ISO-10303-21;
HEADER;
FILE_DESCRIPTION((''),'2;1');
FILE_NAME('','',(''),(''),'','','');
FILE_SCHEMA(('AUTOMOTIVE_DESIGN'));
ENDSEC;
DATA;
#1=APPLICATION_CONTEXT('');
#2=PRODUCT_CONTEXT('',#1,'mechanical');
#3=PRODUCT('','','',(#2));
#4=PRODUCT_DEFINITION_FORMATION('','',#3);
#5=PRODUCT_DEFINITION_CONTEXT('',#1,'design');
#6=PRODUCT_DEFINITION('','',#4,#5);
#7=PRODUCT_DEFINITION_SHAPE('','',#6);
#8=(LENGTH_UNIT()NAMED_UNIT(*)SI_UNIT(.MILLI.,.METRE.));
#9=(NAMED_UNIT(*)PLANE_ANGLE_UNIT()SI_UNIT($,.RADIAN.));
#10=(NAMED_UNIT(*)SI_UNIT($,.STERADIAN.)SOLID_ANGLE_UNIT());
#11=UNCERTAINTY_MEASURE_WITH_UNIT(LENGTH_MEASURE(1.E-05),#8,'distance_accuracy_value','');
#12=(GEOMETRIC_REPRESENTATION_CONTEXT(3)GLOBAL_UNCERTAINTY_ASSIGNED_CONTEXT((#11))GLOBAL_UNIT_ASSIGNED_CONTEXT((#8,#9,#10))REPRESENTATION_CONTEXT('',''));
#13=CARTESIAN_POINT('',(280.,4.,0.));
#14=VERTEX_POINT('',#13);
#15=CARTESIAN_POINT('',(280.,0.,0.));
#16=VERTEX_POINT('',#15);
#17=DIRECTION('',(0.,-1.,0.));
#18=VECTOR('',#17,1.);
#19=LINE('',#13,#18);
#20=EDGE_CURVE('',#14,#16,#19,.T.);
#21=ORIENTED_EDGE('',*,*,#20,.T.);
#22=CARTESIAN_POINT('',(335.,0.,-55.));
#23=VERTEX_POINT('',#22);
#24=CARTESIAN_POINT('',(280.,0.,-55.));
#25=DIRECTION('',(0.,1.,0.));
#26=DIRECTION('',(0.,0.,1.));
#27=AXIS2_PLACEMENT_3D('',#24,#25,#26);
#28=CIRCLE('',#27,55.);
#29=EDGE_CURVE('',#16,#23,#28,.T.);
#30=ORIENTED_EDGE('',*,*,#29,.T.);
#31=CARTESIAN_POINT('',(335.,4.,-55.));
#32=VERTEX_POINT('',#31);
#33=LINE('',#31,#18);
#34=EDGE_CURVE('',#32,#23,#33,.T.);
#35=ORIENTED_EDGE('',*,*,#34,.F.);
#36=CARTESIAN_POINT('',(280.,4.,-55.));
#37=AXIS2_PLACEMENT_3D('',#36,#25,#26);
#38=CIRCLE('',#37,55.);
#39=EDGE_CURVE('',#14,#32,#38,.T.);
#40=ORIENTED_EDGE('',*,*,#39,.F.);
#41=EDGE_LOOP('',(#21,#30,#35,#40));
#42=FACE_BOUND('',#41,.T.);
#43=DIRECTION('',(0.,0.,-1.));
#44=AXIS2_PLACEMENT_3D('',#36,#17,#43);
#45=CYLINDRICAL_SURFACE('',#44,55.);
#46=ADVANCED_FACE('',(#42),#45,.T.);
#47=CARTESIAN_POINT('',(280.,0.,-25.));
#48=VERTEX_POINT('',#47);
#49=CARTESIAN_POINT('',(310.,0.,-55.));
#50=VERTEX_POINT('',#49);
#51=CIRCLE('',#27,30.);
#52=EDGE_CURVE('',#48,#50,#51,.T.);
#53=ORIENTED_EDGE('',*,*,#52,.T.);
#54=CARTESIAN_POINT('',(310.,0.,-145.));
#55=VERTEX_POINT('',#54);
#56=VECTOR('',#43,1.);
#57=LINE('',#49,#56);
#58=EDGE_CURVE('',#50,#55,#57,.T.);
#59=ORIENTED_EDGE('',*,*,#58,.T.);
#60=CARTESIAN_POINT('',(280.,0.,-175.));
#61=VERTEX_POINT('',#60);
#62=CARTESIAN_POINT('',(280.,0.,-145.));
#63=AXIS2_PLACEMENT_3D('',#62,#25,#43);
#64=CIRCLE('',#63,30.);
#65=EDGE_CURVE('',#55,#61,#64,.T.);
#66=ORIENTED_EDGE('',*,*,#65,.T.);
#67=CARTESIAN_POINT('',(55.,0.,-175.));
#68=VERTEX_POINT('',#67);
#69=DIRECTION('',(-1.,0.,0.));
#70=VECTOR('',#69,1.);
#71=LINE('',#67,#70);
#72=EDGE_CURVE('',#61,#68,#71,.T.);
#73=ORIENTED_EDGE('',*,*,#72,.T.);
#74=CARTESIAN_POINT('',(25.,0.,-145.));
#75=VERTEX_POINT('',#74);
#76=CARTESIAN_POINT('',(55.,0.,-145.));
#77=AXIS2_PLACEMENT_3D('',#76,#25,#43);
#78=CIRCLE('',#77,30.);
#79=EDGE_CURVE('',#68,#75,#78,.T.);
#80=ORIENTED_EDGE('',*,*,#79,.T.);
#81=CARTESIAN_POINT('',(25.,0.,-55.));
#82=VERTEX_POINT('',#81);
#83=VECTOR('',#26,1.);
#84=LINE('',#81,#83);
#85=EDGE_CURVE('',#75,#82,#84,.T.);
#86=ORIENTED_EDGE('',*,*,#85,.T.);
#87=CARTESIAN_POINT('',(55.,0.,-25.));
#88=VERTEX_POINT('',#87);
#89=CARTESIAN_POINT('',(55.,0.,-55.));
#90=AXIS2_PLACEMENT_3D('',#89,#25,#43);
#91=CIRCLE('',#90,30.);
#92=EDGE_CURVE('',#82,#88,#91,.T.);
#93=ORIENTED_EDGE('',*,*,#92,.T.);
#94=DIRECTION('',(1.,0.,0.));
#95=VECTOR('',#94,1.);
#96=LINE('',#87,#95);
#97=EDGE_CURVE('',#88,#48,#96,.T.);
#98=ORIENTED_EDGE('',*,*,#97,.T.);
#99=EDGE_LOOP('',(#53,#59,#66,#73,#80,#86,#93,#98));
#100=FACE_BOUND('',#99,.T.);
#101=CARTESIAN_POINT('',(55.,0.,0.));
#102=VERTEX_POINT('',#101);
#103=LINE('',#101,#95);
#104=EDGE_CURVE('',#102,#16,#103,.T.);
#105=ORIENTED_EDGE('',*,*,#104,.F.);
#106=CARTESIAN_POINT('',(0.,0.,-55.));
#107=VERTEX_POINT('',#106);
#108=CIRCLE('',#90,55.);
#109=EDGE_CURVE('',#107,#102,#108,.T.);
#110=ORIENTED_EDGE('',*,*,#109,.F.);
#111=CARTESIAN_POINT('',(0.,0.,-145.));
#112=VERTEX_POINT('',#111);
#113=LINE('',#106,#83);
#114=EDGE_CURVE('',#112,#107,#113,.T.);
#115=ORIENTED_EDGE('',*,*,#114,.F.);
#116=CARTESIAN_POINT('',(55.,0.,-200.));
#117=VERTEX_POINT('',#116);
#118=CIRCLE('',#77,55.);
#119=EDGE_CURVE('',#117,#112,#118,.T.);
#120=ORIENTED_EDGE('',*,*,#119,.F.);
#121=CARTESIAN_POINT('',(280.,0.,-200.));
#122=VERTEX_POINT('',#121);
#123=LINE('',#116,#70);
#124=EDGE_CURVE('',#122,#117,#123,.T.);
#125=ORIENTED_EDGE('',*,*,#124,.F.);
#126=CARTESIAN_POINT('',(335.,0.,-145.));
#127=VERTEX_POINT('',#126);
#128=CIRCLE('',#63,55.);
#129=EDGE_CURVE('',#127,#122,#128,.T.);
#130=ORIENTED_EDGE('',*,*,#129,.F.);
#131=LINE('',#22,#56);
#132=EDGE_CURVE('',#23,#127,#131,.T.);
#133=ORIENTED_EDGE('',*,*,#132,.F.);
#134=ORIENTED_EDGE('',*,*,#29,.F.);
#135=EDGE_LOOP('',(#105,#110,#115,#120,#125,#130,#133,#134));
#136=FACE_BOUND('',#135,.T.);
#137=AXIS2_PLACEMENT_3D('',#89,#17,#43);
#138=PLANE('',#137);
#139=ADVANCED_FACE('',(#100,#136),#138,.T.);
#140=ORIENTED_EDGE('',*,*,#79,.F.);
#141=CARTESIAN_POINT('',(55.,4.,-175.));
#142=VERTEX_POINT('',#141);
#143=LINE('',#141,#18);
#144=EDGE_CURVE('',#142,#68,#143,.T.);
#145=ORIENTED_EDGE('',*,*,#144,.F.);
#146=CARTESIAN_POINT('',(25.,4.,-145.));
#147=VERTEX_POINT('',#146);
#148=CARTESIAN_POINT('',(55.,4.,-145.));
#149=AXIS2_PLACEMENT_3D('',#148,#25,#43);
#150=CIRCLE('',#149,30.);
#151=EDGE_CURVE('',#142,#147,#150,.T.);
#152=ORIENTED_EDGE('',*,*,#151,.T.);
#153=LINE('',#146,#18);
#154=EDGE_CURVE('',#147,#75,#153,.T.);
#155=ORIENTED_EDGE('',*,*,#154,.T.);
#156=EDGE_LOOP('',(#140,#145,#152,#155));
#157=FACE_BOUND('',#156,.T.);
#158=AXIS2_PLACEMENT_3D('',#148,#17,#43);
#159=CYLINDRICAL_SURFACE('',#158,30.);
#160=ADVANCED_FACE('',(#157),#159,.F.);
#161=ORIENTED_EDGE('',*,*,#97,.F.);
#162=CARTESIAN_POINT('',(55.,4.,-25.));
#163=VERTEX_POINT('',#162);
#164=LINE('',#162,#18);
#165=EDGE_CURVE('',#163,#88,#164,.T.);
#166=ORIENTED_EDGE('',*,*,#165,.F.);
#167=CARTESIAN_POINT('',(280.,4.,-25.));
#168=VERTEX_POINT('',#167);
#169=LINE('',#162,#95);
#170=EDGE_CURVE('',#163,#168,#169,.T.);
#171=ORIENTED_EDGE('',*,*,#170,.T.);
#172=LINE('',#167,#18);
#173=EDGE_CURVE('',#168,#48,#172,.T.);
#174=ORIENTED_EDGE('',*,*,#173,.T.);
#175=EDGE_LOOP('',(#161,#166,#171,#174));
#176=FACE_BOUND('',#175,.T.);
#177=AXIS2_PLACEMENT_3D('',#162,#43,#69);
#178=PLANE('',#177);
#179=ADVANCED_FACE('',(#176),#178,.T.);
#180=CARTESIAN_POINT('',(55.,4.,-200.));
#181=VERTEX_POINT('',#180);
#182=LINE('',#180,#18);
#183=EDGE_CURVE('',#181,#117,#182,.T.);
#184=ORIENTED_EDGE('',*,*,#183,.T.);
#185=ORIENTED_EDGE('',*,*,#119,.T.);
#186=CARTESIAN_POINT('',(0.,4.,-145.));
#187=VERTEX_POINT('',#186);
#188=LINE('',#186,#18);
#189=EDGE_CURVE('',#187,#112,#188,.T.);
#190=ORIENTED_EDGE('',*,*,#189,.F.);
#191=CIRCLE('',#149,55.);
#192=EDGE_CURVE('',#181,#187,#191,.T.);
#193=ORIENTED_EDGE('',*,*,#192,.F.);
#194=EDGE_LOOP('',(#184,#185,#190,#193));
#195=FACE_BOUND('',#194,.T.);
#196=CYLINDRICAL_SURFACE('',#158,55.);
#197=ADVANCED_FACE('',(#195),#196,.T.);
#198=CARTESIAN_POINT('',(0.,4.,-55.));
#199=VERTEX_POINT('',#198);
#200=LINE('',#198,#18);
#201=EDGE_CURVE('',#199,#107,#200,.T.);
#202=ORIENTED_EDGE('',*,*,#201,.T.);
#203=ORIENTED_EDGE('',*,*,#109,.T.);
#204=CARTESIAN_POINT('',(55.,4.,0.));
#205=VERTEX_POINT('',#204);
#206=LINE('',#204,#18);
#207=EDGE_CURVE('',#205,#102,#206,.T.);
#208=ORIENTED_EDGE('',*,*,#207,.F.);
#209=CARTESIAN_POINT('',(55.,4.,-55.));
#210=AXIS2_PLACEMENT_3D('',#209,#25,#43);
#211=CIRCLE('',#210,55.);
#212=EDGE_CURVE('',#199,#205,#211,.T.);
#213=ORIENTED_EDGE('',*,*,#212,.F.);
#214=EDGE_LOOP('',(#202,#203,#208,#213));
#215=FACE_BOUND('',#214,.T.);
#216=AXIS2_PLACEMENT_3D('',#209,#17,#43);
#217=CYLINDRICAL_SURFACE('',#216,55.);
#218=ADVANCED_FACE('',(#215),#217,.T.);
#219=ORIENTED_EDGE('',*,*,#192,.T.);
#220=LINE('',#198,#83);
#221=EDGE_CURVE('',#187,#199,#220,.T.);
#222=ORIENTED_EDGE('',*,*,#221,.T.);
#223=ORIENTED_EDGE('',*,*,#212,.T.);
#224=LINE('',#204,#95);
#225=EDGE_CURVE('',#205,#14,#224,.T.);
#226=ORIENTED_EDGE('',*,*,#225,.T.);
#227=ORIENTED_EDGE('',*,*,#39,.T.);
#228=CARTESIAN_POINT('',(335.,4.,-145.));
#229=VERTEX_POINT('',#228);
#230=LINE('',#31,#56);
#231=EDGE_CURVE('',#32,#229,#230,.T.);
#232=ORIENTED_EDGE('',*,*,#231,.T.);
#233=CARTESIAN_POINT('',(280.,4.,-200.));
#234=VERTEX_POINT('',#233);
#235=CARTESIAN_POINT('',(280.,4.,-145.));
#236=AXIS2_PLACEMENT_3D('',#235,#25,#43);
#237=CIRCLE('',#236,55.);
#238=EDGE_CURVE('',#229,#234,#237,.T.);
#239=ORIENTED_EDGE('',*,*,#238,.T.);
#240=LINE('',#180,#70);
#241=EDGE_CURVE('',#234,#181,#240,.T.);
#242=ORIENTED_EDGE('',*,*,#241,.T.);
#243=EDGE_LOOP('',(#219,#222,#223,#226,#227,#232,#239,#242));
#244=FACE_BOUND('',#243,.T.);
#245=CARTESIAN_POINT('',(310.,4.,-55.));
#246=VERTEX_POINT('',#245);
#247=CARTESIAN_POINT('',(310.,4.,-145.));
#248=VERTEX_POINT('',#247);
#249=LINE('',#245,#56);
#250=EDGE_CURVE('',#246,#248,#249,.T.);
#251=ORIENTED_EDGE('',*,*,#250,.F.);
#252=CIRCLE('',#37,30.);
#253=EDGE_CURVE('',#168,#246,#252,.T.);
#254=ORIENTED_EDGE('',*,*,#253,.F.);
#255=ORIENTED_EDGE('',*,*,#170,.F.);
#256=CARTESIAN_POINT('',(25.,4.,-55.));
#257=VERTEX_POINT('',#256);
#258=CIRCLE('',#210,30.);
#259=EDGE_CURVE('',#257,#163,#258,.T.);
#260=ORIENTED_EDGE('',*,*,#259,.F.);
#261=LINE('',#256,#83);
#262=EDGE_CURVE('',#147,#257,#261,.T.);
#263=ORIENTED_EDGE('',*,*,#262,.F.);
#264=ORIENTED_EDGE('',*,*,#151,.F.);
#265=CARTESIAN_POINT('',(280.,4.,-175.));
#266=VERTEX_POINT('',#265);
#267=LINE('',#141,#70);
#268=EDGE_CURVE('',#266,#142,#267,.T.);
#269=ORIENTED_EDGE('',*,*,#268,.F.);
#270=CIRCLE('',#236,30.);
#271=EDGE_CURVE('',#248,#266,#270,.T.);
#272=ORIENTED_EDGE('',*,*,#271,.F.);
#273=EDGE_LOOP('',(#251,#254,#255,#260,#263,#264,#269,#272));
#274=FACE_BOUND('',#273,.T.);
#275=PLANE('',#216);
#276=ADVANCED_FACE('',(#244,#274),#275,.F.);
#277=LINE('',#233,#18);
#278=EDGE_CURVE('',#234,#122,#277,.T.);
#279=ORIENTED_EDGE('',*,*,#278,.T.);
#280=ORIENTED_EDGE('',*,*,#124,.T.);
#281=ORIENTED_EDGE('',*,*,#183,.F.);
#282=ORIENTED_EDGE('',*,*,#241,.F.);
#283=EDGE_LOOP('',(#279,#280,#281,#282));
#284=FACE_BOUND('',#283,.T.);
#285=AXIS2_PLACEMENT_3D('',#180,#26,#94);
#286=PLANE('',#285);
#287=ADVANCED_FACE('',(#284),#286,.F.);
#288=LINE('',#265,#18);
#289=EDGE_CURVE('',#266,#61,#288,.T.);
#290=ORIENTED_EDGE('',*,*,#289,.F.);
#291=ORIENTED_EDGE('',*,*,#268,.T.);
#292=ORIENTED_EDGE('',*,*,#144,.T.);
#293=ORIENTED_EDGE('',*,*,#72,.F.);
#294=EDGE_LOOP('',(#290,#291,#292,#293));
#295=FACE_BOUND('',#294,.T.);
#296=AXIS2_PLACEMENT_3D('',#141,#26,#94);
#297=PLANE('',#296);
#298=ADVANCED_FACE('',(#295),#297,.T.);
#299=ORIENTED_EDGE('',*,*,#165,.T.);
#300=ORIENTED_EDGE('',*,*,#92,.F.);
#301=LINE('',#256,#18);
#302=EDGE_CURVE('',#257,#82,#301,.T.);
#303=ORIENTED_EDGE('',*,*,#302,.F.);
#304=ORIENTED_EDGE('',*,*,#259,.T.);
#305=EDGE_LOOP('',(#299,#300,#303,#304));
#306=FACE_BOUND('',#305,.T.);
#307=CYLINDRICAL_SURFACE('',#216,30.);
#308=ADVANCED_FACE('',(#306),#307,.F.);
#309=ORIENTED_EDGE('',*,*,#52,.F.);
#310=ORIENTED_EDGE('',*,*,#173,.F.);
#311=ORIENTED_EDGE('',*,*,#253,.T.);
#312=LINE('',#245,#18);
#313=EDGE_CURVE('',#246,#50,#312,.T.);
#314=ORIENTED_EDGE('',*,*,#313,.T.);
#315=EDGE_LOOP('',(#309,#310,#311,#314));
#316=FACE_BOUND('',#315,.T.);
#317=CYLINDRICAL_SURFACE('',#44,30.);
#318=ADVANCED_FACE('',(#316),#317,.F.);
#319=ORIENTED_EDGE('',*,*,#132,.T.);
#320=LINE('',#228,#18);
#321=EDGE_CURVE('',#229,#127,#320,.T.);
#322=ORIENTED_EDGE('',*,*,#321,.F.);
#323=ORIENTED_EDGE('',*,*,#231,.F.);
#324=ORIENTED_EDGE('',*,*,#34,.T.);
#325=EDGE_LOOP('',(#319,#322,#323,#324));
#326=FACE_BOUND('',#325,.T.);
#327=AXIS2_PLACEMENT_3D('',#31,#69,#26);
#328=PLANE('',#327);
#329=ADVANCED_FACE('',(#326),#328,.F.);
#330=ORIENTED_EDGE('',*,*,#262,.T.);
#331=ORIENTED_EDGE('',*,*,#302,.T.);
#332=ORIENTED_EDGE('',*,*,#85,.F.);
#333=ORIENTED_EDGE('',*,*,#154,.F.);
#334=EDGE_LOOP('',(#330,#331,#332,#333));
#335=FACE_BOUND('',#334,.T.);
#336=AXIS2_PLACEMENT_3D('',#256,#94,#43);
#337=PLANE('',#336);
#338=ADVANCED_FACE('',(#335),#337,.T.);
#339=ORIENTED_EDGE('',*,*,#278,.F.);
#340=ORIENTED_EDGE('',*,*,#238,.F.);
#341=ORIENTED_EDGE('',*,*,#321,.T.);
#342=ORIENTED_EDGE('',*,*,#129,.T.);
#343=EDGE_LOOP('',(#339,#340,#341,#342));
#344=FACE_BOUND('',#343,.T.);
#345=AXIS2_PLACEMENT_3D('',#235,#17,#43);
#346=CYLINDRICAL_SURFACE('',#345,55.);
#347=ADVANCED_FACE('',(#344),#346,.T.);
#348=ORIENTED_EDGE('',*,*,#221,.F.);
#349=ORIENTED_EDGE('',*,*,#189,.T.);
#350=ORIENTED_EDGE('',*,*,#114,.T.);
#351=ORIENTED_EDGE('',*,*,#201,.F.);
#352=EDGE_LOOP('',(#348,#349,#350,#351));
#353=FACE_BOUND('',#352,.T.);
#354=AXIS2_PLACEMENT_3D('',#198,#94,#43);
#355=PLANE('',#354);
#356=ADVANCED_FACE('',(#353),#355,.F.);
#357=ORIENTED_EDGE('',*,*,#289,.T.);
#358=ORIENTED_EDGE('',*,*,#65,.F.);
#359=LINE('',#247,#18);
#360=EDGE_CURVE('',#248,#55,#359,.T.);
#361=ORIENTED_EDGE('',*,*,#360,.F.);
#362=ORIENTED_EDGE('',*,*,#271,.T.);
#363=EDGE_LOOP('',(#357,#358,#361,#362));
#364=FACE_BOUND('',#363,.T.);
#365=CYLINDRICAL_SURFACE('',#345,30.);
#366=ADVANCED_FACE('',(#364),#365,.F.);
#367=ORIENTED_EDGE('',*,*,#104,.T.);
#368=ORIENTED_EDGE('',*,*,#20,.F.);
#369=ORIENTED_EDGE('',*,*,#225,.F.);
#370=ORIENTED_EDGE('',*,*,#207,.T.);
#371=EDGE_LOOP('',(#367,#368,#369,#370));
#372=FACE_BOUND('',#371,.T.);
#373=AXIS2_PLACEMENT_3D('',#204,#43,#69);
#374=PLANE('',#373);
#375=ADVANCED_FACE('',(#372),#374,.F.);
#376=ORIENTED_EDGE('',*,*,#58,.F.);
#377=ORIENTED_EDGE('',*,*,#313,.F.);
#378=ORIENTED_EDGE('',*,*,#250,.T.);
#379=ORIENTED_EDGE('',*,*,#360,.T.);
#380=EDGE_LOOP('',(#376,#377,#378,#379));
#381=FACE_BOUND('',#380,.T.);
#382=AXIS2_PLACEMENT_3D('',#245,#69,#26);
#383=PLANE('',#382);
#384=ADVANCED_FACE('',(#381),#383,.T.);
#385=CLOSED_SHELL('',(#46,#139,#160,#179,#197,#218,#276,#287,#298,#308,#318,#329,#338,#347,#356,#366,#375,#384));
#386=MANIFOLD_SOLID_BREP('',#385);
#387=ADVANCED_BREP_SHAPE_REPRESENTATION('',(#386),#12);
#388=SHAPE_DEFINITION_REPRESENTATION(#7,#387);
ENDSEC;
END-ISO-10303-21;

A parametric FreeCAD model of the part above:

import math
import FreeCAD as App
import Part
import Sketcher

doc = App.newDocument("Part")
body = doc.addObject("PartDesign::Body", "Body")

# Sketch on XZ plane
sketch1 = body.newObject("Sketcher::SketchObject", "Sketch")
sketch1.AttachmentSupport = (doc.getObject("XZ_Plane"), [""])
sketch1.MapMode = "FlatFace"
sketch1.addGeometry([
    Part.LineSegment(App.Vector(55, 0, 0), App.Vector(280, 0, 0)),  # 0
    Part.ArcOfCircle(Part.Circle(App.Vector(280, -55, 0), App.Vector(0, 0, 1), 55), math.radians(0), math.radians(90)),  # 1
    Part.LineSegment(App.Vector(335, -55, 0), App.Vector(335, -145, 0)),  # 2
    Part.ArcOfCircle(Part.Circle(App.Vector(280, -145, 0), App.Vector(0, 0, 1), 55), math.radians(-90), math.radians(0)),  # 3
    Part.LineSegment(App.Vector(280, -200, 0), App.Vector(55, -200, 0)),  # 4
    Part.ArcOfCircle(Part.Circle(App.Vector(55, -145, 0), App.Vector(0, 0, 1), 55), math.radians(-180), math.radians(-90)),  # 5
    Part.LineSegment(App.Vector(0, -145, 0), App.Vector(0, -55, 0)),  # 6
    Part.ArcOfCircle(Part.Circle(App.Vector(55, -55, 0), App.Vector(0, 0, 1), 55), math.radians(90), math.radians(180)),  # 7
    Part.LineSegment(App.Vector(280, -25, 0), App.Vector(55, -25, 0)),  # 8
    Part.ArcOfCircle(Part.Circle(App.Vector(55, -55, 0), App.Vector(0, 0, 1), 30), math.radians(90), math.radians(180)),  # 9
    Part.LineSegment(App.Vector(25, -55, 0), App.Vector(25, -145, 0)),  # 10
    Part.ArcOfCircle(Part.Circle(App.Vector(55, -145, 0), App.Vector(0, 0, 1), 30), math.radians(180), math.radians(270)),  # 11
    Part.LineSegment(App.Vector(55, -175, 0), App.Vector(280, -175, 0)),  # 12
    Part.ArcOfCircle(Part.Circle(App.Vector(280, -145, 0), App.Vector(0, 0, 1), 30), math.radians(-90), math.radians(0)),  # 13
    Part.LineSegment(App.Vector(310, -145, 0), App.Vector(310, -55, 0)),  # 14
    Part.ArcOfCircle(Part.Circle(App.Vector(280, -55, 0), App.Vector(0, 0, 1), 30), math.radians(0), math.radians(90)),  # 15
], False)
sketch1.addConstraint([
    Sketcher.Constraint("Tangent", 0, 2, 1, 2),
    Sketcher.Constraint("Tangent", 1, 1, 2, 1),
    Sketcher.Constraint("Tangent", 2, 2, 3, 2),
    Sketcher.Constraint("Tangent", 3, 1, 4, 1),
    Sketcher.Constraint("Tangent", 4, 2, 5, 2),
    Sketcher.Constraint("Tangent", 5, 1, 6, 1),
    Sketcher.Constraint("Tangent", 6, 2, 7, 2),
    Sketcher.Constraint("Tangent", 7, 1, 0, 1),
    Sketcher.Constraint("Tangent", 8, 2, 9, 1),
    Sketcher.Constraint("Tangent", 9, 2, 10, 1),
    Sketcher.Constraint("Tangent", 10, 2, 11, 1),
    Sketcher.Constraint("Tangent", 11, 2, 12, 1),
    Sketcher.Constraint("Tangent", 12, 2, 13, 1),
    Sketcher.Constraint("Tangent", 13, 2, 14, 1),
    Sketcher.Constraint("Tangent", 14, 2, 15, 1),
    Sketcher.Constraint("Tangent", 15, 2, 8, 1),
    Sketcher.Constraint("Horizontal", 0),
    Sketcher.Constraint("Vertical", 2),
    Sketcher.Constraint("Horizontal", 4),
    Sketcher.Constraint("Vertical", 6),
    Sketcher.Constraint("Horizontal", 8),
    Sketcher.Constraint("Vertical", 10),
    Sketcher.Constraint("Horizontal", 12),
    Sketcher.Constraint("Vertical", 14),
    Sketcher.Constraint("Coincident", 9, 3, 7, 3),
    Sketcher.Constraint("Coincident", 11, 3, 5, 3),
    Sketcher.Constraint("Coincident", 13, 3, 3, 3),
    Sketcher.Constraint("Equal", 1, 3),
    Sketcher.Constraint("Equal", 3, 5),
    Sketcher.Constraint("Equal", 5, 7),
    Sketcher.Constraint("Equal", 13, 15),
    Sketcher.Constraint("PointOnObject", 0, 2, -1),
    Sketcher.Constraint("PointOnObject", 5, 1, -2),
    Sketcher.Constraint("Radius", 1, 55.0),
    Sketcher.Constraint("Radius", 9, 30.0),
    Sketcher.Constraint("DistanceX", 0, 1, 0, 2, 225.0),
    Sketcher.Constraint("DistanceY", 2, 2, 2, 1, 90.0),
])
pad1 = body.newObject("PartDesign::Pad", "Pad")
pad1.Profile = sketch1
pad1.Length = 4
pad1.Reversed = True

doc.recompute()
